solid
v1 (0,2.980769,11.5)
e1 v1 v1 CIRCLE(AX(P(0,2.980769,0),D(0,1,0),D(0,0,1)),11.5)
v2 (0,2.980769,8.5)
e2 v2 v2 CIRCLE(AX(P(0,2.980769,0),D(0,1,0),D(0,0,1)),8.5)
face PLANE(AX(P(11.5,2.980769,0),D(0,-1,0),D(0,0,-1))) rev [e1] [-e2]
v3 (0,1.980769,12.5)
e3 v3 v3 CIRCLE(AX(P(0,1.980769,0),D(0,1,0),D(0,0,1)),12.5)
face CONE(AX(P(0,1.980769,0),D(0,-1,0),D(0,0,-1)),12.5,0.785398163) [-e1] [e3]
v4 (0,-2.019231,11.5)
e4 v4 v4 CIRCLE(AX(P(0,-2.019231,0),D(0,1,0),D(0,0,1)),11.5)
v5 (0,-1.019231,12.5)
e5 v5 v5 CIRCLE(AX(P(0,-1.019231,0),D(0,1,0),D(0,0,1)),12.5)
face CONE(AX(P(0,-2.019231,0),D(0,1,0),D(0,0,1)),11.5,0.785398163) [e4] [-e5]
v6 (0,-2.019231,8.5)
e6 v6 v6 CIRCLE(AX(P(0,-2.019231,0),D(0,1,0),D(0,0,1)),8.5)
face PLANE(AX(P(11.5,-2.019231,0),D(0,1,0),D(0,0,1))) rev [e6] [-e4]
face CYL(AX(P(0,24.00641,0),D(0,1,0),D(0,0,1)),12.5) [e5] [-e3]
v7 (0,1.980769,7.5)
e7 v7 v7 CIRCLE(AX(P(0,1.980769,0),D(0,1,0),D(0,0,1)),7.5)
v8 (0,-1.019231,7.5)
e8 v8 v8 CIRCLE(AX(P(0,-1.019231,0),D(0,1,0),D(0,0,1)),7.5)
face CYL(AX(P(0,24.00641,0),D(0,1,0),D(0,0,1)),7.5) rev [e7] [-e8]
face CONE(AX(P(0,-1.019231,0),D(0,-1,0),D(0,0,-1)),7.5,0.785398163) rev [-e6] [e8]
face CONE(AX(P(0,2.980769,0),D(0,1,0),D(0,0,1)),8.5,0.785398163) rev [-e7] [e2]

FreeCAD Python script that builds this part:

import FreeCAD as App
import Part
import Sketcher

V = App.Vector


def add_polygon(sketch, points):
    """Adds a closed chain of lines whose ends are joined by coincident constraints."""
    first, n = sketch.GeometryCount, len(points)
    for a, b in zip(points, points[1:] + points[:1]):
        sketch.addGeometry(Part.LineSegment(App.Vector(*a, 0), App.Vector(*b, 0)), False)
    for i in range(n):
        sketch.addConstraint(Sketcher.Constraint("Coincident", first + i, 2, first + (i + 1) % n, 1))

doc = App.newDocument("Part")
body = doc.addObject("PartDesign::Body", "Body")

# Sketch on XY plane
sketch1 = body.newObject("Sketcher::SketchObject", "Sketch")
sketch1.AttachmentSupport = (doc.getObject("XY_Plane"), [""])
sketch1.MapMode = "FlatFace"
add_polygon(sketch1, [(8.5, 2.980769), (7.5, 1.980769), (7.5, -1.019231), (8.5, -2.019231), (11.5, -2.019231), (12.5, -1.019231), (12.5, 1.980769), (11.5, 2.980769)])  # lines 0-7
sketch1.addConstraint([
    Sketcher.Constraint("Vertical", 1),
    Sketcher.Constraint("Horizontal", 3),
    Sketcher.Constraint("Vertical", 5),
    Sketcher.Constraint("Horizontal", 7),
    Sketcher.Constraint("Perpendicular", 0, 2),
    Sketcher.Constraint("Perpendicular", 2, 4),
    Sketcher.Constraint("Perpendicular", 4, 6),
    Sketcher.Constraint("Horizontal", 1, 2, 4, 2),
    Sketcher.Constraint("Horizontal", 0, 2, 5, 2),
    Sketcher.Constraint("Vertical", 3, 2, 6, 2),
    Sketcher.Constraint("Vertical", 2, 2, 7, 2),
    Sketcher.Constraint("Equal", 7, 1),
    Sketcher.Constraint("DistanceX", 3, 1, 3, 2, 3.0),
    Sketcher.Constraint("DistanceX", 1, 2, 2, 2, 1.0),
    Sketcher.Constraint("DistanceX", -1, 1, 0, 2, 7.5),
    Sketcher.Constraint("DistanceY", -1, 1, 0, 2, 1.980769),
])
revolution = body.newObject("PartDesign::Revolution", "Revolution")
revolution.Profile = sketch1
revolution.ReferenceAxis = (sketch1, ["V_Axis"])
revolution.Angle = 360

doc.recompute()
